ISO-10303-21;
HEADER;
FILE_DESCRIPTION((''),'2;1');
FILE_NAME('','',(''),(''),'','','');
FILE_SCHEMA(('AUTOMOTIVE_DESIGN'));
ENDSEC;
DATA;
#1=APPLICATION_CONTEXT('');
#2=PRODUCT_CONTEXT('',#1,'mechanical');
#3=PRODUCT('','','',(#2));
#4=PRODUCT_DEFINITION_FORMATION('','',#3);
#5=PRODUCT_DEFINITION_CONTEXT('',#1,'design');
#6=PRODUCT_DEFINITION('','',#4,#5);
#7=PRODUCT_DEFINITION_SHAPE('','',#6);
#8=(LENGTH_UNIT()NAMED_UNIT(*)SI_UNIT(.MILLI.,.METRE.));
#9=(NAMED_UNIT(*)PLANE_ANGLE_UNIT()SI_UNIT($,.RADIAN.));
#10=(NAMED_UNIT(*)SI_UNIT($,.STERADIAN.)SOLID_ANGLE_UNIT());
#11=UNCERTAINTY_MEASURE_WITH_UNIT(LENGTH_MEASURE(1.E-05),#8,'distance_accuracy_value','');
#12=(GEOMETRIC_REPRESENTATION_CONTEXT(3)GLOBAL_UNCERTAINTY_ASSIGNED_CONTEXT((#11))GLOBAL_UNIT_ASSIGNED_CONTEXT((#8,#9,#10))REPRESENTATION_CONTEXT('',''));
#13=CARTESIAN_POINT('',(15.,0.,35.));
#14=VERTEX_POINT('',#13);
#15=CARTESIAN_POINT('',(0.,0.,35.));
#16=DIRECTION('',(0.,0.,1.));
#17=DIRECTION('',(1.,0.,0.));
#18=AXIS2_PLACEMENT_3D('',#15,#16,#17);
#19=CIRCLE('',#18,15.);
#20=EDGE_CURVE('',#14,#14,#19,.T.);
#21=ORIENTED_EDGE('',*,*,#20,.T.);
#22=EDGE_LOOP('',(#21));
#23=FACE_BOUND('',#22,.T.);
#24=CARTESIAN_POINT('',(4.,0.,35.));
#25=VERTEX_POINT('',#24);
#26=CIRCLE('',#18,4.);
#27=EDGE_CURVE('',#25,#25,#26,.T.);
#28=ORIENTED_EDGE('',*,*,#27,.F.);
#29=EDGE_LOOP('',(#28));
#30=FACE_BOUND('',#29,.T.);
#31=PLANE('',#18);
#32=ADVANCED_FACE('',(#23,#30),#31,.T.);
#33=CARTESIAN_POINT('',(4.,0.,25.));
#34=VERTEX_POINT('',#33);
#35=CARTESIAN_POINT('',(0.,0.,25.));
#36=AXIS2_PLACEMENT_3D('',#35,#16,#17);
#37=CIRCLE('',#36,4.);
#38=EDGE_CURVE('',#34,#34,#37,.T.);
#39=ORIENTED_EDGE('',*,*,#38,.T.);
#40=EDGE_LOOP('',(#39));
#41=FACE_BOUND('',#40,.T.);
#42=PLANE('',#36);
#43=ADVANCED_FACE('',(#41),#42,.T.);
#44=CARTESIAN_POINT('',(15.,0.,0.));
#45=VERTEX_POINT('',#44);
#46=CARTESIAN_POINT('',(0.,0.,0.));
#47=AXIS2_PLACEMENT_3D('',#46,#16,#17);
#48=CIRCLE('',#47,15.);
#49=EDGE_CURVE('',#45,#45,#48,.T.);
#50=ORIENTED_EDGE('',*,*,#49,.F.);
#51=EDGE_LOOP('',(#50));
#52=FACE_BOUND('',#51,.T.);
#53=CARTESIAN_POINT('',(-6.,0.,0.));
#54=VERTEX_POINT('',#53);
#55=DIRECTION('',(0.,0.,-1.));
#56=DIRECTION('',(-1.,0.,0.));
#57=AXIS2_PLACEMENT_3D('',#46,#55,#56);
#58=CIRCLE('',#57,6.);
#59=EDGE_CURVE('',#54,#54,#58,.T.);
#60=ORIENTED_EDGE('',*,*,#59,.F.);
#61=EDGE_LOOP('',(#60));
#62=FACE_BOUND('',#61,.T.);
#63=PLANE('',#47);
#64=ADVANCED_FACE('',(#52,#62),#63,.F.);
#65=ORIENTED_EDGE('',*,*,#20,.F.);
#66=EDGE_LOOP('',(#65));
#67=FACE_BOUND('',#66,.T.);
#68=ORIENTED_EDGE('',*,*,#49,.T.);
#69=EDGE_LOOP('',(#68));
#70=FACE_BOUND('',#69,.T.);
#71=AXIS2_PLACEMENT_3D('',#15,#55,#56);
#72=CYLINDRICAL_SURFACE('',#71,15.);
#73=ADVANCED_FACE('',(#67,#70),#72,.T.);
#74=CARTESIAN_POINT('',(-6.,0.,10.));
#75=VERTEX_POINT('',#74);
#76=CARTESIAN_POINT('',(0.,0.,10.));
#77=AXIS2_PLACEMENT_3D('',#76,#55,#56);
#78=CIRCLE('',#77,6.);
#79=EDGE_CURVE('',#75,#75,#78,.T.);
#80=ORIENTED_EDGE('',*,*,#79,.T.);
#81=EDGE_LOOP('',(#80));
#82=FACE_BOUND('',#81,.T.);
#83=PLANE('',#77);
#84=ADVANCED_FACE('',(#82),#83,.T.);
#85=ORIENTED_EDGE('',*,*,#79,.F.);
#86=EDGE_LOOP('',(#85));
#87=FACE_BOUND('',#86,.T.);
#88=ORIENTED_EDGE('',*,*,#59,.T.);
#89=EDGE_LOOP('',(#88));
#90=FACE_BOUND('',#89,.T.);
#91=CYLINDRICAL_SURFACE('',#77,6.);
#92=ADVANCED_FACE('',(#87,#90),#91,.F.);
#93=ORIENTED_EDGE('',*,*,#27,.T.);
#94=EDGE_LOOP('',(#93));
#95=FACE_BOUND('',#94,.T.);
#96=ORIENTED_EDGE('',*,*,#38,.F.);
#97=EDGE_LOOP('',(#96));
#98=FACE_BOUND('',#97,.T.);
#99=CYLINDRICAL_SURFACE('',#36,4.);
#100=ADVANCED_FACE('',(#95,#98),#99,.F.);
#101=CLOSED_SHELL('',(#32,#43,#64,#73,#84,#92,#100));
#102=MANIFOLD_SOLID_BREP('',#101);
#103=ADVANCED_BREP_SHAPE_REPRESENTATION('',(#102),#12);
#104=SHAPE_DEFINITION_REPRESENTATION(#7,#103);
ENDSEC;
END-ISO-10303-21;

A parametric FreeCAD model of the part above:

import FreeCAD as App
import Part
import Sketcher
Q = App.Units.Quantity

doc = App.newDocument("Part")
body = doc.addObject("PartDesign::Body", "Body")

sketch1 = doc.addObject("Sketcher::SketchObject", "Sketch")
body.addObject(sketch1)
sketch1.AttachmentSupport = (doc.XY_Plane, [""])
sketch1.MapMode = "FlatFace"
sketch1.addGeometry(Part.Circle(App.Vector(0, 0, 0), App.Vector(0, 0, 1), 15), False)
sketch1.addConstraint([
    Sketcher.Constraint("Coincident", 0, 3, -1, 1),
    Sketcher.Constraint("Diameter", 0, Q("30 mm")),
])
pad1 = doc.addObject("PartDesign::Pad", "Pad")
body.addObject(pad1)
pad1.Profile = sketch1
pad1.Length = 35

sketch2 = doc.addObject("Sketcher::SketchObject", "Sketch001")
body.addObject(sketch2)
sketch2.AttachmentSupport = (doc.XY_Plane, [""])
sketch2.MapMode = "FlatFace"
sketch2.AttachmentOffset = App.Placement(App.Vector(0, 0, 35), App.Rotation())
sketch2.addGeometry(Part.Circle(App.Vector(0, 0, 0), App.Vector(0, 0, 1), 4), False)
sketch2.addConstraint([
    Sketcher.Constraint("Coincident", 0, 3, -1, 1),
    Sketcher.Constraint("Diameter", 0, Q("8 mm")),
])
pocket1 = doc.addObject("PartDesign::Pocket", "Pocket")
body.addObject(pocket1)
pocket1.Profile = sketch2
pocket1.Length = 10

sketch3 = doc.addObject("Sketcher::SketchObject", "Sketch002")
body.addObject(sketch3)
sketch3.AttachmentSupport = (doc.XY_Plane, [""])
sketch3.MapMode = "FlatFace"
sketch3.addGeometry(Part.Circle(App.Vector(0, 0, 0), App.Vector(0, 0, 1), 6), False)
sketch3.addConstraint([
    Sketcher.Constraint("Coincident", 0, 3, -1, 1),
    Sketcher.Constraint("Diameter", 0, Q("12 mm")),
])
pocket2 = doc.addObject("PartDesign::Pocket", "Pocket001")
body.addObject(pocket2)
pocket2.Profile = sketch3
pocket2.Length = 10
pocket2.Reversed = True

doc.recompute()
